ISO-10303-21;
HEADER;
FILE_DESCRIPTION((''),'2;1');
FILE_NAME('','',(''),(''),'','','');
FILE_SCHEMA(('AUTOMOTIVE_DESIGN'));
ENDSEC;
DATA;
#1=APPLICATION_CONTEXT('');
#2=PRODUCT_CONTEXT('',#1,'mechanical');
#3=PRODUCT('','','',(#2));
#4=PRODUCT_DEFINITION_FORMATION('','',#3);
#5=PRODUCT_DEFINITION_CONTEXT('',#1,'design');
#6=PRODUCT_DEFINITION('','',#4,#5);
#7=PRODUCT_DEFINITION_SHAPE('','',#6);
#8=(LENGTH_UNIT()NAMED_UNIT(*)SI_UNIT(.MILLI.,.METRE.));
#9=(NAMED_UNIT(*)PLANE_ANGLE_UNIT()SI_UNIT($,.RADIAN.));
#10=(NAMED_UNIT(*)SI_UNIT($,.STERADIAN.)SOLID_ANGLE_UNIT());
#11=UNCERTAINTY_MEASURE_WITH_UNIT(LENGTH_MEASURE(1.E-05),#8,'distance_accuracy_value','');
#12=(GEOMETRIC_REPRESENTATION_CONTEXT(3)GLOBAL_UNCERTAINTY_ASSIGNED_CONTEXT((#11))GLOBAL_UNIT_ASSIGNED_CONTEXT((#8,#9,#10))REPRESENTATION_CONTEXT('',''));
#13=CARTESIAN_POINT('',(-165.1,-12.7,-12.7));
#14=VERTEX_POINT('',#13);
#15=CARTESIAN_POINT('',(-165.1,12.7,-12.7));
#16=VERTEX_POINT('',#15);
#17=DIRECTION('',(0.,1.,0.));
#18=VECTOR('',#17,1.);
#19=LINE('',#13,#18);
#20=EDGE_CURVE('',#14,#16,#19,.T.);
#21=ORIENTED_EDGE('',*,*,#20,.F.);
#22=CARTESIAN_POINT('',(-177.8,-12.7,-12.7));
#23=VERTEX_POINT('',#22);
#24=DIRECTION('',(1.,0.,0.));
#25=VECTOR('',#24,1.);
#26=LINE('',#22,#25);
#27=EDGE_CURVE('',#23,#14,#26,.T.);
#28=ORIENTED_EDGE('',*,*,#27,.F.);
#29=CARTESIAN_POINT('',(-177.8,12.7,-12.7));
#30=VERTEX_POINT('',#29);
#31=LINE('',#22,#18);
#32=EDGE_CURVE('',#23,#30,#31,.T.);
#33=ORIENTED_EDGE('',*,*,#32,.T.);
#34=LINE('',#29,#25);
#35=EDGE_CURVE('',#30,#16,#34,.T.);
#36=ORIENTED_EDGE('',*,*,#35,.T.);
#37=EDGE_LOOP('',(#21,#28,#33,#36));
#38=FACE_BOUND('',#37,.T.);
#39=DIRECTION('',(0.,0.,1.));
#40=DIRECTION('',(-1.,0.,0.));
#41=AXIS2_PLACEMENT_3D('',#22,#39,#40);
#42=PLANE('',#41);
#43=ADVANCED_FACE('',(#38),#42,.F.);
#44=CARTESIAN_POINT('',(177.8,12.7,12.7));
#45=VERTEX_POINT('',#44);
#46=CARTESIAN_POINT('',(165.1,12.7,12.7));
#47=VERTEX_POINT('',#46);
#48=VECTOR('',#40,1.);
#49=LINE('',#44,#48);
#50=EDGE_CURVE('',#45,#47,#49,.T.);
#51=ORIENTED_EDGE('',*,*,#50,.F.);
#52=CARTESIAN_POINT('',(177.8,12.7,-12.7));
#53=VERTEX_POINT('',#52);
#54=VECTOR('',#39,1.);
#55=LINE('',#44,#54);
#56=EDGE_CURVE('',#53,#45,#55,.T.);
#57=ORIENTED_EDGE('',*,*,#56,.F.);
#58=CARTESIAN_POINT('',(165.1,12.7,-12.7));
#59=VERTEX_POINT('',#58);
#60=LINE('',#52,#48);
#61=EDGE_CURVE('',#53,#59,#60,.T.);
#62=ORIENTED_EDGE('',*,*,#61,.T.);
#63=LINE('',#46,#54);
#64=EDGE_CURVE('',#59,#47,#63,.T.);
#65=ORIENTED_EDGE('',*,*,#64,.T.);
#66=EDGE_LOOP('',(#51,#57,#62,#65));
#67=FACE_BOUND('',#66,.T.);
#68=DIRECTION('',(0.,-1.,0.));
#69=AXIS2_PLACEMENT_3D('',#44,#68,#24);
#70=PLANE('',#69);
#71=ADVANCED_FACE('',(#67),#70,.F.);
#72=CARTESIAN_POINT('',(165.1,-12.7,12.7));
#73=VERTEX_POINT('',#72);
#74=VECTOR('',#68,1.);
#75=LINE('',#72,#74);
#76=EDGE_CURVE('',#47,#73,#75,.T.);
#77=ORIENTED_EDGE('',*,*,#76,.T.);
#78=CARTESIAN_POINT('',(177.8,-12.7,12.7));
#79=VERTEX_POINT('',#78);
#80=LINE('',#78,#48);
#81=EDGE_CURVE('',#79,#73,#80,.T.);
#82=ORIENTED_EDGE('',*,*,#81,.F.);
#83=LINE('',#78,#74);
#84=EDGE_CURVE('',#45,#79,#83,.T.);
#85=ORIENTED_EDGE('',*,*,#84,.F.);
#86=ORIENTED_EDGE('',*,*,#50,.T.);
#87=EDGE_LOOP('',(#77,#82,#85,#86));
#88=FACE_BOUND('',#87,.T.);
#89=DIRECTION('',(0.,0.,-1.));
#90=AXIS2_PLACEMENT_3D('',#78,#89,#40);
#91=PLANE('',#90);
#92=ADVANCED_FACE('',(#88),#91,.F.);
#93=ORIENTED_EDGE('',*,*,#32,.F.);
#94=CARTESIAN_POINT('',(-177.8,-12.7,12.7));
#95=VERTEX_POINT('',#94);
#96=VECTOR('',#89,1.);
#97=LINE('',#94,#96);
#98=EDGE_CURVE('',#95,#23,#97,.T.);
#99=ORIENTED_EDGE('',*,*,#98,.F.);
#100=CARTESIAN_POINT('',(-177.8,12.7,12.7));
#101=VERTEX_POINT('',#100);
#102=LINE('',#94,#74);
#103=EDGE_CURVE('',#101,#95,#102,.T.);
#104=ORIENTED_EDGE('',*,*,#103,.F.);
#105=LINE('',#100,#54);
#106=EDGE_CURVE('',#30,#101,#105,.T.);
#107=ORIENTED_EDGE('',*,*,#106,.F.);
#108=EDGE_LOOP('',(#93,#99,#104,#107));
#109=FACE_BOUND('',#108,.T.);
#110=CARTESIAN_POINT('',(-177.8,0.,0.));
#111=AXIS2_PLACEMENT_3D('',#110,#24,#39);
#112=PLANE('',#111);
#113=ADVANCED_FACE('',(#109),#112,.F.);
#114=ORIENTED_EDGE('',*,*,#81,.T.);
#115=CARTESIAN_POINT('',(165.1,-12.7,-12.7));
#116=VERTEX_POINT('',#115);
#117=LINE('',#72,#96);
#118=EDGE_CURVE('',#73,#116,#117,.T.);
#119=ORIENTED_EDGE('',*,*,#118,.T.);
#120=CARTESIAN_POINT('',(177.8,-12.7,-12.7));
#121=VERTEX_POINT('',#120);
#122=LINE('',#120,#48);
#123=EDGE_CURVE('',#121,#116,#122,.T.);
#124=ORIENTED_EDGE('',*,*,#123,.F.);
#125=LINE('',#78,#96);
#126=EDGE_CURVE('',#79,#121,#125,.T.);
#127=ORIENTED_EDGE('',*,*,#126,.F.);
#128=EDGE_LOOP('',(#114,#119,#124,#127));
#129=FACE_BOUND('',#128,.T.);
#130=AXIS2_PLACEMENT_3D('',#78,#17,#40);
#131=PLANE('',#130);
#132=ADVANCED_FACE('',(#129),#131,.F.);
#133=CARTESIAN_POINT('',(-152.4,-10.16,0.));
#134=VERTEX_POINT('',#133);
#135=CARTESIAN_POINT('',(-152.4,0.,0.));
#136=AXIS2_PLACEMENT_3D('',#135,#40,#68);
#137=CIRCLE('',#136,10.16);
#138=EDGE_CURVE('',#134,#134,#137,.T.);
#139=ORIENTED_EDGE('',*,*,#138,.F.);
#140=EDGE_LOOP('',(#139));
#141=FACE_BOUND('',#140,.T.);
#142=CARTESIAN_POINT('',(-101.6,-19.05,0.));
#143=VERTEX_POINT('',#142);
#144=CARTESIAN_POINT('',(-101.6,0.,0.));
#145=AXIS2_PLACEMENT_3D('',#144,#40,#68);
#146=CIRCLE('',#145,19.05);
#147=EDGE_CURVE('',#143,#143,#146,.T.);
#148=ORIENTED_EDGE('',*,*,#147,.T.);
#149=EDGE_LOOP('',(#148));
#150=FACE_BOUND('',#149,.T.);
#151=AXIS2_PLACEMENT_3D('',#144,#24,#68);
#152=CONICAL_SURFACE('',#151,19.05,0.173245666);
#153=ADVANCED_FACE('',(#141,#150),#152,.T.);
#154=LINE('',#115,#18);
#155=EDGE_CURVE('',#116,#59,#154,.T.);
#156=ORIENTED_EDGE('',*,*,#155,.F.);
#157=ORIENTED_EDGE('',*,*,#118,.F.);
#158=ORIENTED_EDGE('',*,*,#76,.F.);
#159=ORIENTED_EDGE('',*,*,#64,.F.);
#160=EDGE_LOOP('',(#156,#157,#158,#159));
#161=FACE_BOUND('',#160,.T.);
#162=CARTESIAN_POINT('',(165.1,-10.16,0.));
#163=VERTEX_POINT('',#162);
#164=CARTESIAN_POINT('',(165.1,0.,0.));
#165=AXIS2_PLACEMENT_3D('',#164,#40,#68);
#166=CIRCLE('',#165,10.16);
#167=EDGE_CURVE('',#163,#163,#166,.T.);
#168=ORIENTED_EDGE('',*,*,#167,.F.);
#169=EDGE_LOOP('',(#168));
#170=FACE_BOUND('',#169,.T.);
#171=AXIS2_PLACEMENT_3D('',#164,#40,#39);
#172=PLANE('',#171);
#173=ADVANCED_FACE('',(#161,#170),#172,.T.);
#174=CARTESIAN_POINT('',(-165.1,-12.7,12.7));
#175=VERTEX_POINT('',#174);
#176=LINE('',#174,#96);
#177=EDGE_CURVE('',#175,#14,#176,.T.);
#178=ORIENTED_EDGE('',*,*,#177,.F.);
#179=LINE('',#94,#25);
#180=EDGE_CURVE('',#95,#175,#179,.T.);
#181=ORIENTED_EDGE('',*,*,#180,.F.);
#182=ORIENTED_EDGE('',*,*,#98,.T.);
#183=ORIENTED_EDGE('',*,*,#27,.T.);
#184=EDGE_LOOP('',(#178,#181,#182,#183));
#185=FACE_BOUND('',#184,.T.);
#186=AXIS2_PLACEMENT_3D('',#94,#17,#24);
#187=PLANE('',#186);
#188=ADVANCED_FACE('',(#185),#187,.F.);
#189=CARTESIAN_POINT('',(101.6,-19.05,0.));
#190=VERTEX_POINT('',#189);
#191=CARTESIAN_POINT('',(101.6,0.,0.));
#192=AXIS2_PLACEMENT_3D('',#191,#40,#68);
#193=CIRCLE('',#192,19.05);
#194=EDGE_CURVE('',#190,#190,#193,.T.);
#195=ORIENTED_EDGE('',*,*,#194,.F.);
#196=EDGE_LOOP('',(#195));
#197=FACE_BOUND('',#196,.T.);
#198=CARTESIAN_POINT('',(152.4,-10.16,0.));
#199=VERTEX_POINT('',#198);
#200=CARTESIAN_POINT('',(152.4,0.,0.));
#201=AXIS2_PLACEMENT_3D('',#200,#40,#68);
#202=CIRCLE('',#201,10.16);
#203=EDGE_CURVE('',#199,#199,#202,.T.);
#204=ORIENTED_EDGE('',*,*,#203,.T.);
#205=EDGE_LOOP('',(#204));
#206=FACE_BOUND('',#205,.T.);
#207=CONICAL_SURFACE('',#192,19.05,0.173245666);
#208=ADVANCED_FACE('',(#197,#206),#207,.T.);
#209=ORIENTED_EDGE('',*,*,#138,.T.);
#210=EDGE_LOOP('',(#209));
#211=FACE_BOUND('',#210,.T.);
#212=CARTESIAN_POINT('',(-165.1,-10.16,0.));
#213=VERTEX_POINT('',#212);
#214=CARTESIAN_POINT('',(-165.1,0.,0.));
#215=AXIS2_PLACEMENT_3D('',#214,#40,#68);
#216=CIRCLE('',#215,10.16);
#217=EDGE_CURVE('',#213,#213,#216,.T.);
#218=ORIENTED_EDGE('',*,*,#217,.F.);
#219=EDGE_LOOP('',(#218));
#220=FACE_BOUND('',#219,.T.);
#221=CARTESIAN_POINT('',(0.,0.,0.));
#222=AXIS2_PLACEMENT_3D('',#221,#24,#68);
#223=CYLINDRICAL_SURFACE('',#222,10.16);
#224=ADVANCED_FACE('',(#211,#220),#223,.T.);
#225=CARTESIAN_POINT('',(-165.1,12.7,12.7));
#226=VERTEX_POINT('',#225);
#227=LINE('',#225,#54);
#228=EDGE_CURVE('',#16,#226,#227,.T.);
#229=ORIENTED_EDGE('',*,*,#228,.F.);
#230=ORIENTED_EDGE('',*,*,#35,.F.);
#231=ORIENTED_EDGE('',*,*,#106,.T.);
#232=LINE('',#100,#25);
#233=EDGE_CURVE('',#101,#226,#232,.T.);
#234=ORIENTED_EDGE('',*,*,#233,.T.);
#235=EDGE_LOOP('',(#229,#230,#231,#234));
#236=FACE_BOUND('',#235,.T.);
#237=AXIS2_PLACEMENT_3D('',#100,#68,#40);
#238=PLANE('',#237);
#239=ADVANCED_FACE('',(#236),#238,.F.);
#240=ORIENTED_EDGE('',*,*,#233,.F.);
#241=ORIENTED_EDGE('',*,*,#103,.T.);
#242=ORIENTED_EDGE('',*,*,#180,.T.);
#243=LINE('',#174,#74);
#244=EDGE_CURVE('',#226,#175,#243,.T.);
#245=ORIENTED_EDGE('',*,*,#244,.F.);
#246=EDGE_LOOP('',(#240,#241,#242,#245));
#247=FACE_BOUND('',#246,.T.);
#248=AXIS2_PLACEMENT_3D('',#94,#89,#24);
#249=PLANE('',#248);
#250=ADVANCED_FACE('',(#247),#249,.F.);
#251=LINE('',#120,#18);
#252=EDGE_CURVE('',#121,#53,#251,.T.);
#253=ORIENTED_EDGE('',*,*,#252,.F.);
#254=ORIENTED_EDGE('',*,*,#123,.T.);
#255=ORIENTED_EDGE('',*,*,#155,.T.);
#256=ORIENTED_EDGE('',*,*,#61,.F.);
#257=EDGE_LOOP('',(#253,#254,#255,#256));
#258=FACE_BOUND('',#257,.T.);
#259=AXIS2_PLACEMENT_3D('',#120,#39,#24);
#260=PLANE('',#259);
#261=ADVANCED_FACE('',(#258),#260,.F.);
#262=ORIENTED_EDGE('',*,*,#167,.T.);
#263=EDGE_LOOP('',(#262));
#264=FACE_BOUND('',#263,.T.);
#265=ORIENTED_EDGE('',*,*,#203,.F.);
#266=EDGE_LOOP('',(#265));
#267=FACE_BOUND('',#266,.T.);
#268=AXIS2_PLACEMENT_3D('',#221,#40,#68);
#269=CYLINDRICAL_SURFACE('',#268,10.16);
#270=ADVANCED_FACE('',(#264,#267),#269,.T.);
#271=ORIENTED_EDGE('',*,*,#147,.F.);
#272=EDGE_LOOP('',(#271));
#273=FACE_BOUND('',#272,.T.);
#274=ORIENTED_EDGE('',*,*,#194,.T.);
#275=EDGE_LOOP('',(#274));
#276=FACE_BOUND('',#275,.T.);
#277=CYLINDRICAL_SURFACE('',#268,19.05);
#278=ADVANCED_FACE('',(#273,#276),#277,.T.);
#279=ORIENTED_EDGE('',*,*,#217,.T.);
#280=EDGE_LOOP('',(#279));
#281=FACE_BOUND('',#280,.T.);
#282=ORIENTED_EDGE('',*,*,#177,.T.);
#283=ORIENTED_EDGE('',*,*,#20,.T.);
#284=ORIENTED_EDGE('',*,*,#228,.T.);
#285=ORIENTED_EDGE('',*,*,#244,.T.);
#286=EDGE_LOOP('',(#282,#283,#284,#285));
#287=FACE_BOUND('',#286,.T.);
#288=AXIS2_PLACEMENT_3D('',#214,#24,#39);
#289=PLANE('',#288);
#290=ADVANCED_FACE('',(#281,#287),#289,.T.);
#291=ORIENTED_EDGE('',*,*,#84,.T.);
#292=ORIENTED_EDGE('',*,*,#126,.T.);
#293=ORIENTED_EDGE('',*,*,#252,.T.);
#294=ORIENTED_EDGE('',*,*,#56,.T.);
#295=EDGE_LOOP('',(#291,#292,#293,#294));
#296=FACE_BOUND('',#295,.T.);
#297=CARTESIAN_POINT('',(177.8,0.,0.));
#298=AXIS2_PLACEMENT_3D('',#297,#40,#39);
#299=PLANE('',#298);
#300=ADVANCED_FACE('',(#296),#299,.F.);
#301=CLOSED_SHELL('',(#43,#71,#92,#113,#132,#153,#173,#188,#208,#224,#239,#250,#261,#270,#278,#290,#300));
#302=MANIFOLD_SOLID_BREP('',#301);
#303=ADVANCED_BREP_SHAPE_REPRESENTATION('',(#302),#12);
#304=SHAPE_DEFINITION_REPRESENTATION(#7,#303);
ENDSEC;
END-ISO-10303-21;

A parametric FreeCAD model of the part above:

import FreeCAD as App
import Part
import Sketcher
Q = App.Units.Quantity


def add_polygon(sketch, points):
    """Adds a closed chain of lines whose ends are joined by coincident constraints."""
    first, n = sketch.GeometryCount, len(points)
    for a, b in zip(points, points[1:] + points[:1]):
        sketch.addGeometry(Part.LineSegment(App.Vector(*a, 0), App.Vector(*b, 0)), False)
    for i in range(n):
        sketch.addConstraint(Sketcher.Constraint("Coincident", first + i, 2, first + (i + 1) % n, 1))

doc = App.newDocument("Part")
body = doc.addObject("PartDesign::Body", "Body")

sketch1 = body.newObject("Sketcher::SketchObject", "Sketch")
sketch1.AttachmentSupport = (doc.getObject("XY_Plane"), [""])
sketch1.MapMode = "FlatFace"
add_polygon(sketch1, [(102, 19), (0, 19), (0, 0), (165, 0), (165, 10), (152, 10)])
sketch1.addConstraint([
    Sketcher.Constraint("Horizontal", 0),
    Sketcher.Constraint("Vertical", 1),
    Sketcher.Constraint("Horizontal", 2),
    Sketcher.Constraint("Vertical", 3),
    Sketcher.Constraint("Horizontal", 4),
    Sketcher.Constraint("Coincident", 1, 2, -1, 1),
    Sketcher.Constraint("DistanceX", 0, 2, 0, 1, Q("4 in")),
    Sketcher.Constraint("DistanceX", 2, 1, 2, 2, Q("6.5 in")),
    Sketcher.Constraint("DistanceX", 4, 2, 4, 1, Q("0.5 in")),
    Sketcher.Constraint("DistanceY", 3, 1, 3, 2, Q("0.4 in")),
    Sketcher.Constraint("DistanceY", 1, 2, 1, 1, Q("0.75 in")),
])
revolution = body.newObject("PartDesign::Revolution", "Revolution")
revolution.Profile = sketch1
revolution.ReferenceAxis = (sketch1, ["H_Axis"])
revolution.Angle = 360

sketch2 = body.newObject("Sketcher::SketchObject", "Sketch001")
sketch2.AttachmentSupport = (doc.getObject("YZ_Plane"), [""])
sketch2.MapMode = "FlatFace"
sketch2.AttachmentOffset = App.Placement(App.Vector(0, 0, 6.5 * 25.4), App.Rotation())
add_polygon(sketch2, [(13, 13), (-13, 13), (-13, -13), (13, -13)])
sketch2.addConstraint([
    Sketcher.Constraint("Horizontal", 0),
    Sketcher.Constraint("Vertical", 1),
    Sketcher.Constraint("Horizontal", 2),
    Sketcher.Constraint("Vertical", 3),
    Sketcher.Constraint("Symmetric", 0, 2, 2, 2, -1, 1),
    Sketcher.Constraint("Equal", 2, 1),
    Sketcher.Constraint("DistanceX", 0, 2, 0, 1, Q("1 in")),
])
pad1 = body.newObject("PartDesign::Pad", "Pad")
pad1.Profile = sketch2
pad1.Length = Q("0.5 in")
body2 = doc.addObject("PartDesign::Body", "Body001")
doc.recompute()

body2.BaseFeature = body
doc.recompute()

mirroring = doc.addObject("Part::Mirroring", "Mirroring")
mirroring.Source = body
mirroring.Base = App.Vector(0, 0, 0)
mirroring.Normal = App.Vector(1, 0, 0)
body3 = doc.addObject("PartDesign::Body", "Body002")
body3.BaseFeature = mirroring
boolean = body2.newObject("PartDesign::Boolean", "Boolean")
boolean.Type = "Fuse"
boolean.addObjects([body3])
doc.recompute()
mirroring.Visibility = False

doc.recompute()
